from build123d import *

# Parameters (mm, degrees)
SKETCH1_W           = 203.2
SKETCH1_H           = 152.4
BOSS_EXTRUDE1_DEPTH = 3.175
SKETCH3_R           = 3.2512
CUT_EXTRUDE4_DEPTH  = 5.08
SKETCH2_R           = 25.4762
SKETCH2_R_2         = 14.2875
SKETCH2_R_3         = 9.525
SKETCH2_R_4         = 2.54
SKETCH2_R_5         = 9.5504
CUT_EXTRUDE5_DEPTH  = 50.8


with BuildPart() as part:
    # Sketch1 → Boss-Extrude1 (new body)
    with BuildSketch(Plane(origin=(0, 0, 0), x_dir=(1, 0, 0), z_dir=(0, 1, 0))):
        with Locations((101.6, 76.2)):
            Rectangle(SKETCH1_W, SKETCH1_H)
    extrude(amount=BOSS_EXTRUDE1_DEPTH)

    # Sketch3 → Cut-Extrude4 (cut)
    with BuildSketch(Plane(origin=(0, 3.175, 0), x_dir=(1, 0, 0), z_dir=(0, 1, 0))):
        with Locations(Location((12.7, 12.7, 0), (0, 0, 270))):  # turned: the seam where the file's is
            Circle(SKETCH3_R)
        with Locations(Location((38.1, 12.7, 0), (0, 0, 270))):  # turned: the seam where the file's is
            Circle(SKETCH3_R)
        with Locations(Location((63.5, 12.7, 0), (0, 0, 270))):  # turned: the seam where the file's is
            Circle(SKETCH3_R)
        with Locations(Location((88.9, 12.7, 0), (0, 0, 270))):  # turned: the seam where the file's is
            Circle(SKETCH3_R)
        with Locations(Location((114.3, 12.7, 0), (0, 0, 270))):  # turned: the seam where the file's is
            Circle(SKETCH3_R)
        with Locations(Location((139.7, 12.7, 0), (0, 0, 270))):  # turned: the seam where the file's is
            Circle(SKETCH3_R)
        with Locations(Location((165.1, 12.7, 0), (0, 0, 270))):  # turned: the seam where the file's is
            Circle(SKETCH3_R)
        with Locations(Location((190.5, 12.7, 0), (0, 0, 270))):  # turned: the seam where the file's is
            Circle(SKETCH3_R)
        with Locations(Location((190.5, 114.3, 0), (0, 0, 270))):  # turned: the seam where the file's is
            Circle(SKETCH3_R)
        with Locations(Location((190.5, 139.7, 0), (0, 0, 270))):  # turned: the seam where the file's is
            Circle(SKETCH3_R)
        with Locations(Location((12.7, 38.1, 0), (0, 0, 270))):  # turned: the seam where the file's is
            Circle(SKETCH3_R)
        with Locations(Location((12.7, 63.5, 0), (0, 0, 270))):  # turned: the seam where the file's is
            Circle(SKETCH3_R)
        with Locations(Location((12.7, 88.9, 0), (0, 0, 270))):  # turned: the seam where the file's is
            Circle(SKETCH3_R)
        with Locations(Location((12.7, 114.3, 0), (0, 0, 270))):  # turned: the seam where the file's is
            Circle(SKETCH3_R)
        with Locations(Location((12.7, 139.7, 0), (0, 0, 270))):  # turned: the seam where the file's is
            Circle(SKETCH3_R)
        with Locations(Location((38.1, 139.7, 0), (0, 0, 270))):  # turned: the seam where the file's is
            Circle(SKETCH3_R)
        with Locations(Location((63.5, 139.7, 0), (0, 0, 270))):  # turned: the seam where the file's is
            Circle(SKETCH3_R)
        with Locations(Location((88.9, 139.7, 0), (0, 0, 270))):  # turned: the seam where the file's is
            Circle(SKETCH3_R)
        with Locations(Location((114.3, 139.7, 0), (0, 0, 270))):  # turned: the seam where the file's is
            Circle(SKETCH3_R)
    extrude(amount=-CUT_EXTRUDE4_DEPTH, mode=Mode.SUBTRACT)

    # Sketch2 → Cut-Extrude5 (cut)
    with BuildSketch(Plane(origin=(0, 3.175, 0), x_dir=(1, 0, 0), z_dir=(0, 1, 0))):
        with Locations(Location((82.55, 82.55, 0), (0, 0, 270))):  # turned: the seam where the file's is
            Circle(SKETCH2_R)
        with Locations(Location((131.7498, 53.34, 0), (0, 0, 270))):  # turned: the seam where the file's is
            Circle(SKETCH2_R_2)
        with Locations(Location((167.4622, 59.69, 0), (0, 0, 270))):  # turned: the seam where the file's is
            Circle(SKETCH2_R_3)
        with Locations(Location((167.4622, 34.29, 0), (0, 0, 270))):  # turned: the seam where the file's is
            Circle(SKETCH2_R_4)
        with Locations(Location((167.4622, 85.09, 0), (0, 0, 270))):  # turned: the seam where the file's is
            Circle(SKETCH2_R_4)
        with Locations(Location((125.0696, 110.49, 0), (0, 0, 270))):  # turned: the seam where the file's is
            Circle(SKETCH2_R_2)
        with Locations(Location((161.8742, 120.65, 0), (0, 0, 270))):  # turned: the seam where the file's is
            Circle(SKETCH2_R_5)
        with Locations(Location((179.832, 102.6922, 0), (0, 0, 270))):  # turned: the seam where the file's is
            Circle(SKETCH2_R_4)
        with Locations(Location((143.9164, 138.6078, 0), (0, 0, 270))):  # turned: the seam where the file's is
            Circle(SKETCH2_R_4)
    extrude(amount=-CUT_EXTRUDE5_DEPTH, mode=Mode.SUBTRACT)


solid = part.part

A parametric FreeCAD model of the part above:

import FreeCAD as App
import Part
import Sketcher

V = App.Vector
Q = App.Units.Quantity


def add_polygon(sketch, points):
    """Adds a closed chain of lines whose ends are joined by coincident constraints."""
    first, n = sketch.GeometryCount, len(points)
    for a, b in zip(points, points[1:] + points[:1]):
        sketch.addGeometry(Part.LineSegment(App.Vector(*a, 0), App.Vector(*b, 0)), False)
    for i in range(n):
        sketch.addConstraint(Sketcher.Constraint("Coincident", first + i, 2, first + (i + 1) % n, 1))

doc = App.newDocument("Part")
body = doc.addObject("PartDesign::Body", "Body")

sketch1 = body.newObject("Sketcher::SketchObject", "Sketch")
sketch1.AttachmentSupport = (doc.getObject("XZ_Plane"), [""])
sketch1.MapMode = "FlatFace"
add_polygon(sketch1, [(0, -152.4), (0, 0), (203.2, 0), (203.2, -152.4)])
sketch1.addConstraint(Sketcher.Constraint("Vertical", 0))
sketch1.addConstraint(Sketcher.Constraint("Horizontal", 1))
sketch1.addConstraint(Sketcher.Constraint("Vertical", 2))
sketch1.addConstraint(Sketcher.Constraint("Horizontal", 3))
sketch1.addConstraint(Sketcher.Constraint("Coincident", 0, 2, -1, 1))
sketch1.addConstraint(Sketcher.Constraint("DistanceX", 1, 1, 1, 2, Q("8 in")))
sketch1.addConstraint(Sketcher.Constraint("DistanceY", 0, 1, 0, 2, Q("6 in")))
pad1 = body.newObject("PartDesign::Pad", "Pad")
pad1.Profile = sketch1
pad1.Length = Q("0.125 in")
pad1.Reversed = True

sketch2 = body.newObject("Sketcher::SketchObject", "Sketch001")
sketch2.AttachmentSupport = (doc.getObject("XZ_Plane"), [""])
sketch2.MapMode = "FlatFace"
sketch2.AttachmentOffset = App.Placement(V(0, 0, -0.125 * 25.4), App.Rotation())
sketch2.addGeometry(Part.Circle(V(12.7, -12.7, 0), V(0, 0, 1), 3.2512), False)
sketch2.addGeometry(Part.Circle(V(38.1, -12.7, 0), V(0, 0, 1), 3.2512), False)
sketch2.addGeometry(Part.Circle(V(63.5, -12.7, 0), V(0, 0, 1), 3.2512), False)
sketch2.addGeometry(Part.Circle(V(88.9, -12.7, 0), V(0, 0, 1), 3.2512), False)
sketch2.addGeometry(Part.Circle(V(114.3, -12.7, 0), V(0, 0, 1), 3.2512), False)
sketch2.addGeometry(Part.Circle(V(139.7, -12.7, 0), V(0, 0, 1), 3.2512), False)
sketch2.addGeometry(Part.Circle(V(165.1, -12.7, 0), V(0, 0, 1), 3.2512), False)
sketch2.addGeometry(Part.Circle(V(190.5, -12.7, 0), V(0, 0, 1), 3.2512), False)
sketch2.addGeometry(Part.Circle(V(190.5, -114.3, 0), V(0, 0, 1), 3.2512), False)
sketch2.addGeometry(Part.Circle(V(190.5, -139.7, 0), V(0, 0, 1), 3.2512), False)
sketch2.addGeometry(Part.Circle(V(12.7, -38.1, 0), V(0, 0, 1), 3.2512), False)
sketch2.addGeometry(Part.Circle(V(12.7, -63.5, 0), V(0, 0, 1), 3.2512), False)
sketch2.addGeometry(Part.Circle(V(12.7, -88.9, 0), V(0, 0, 1), 3.2512), False)
sketch2.addGeometry(Part.Circle(V(12.7, -114.3, 0), V(0, 0, 1), 3.2512), False)
sketch2.addGeometry(Part.Circle(V(12.7, -139.7, 0), V(0, 0, 1), 3.2512), False)
sketch2.addGeometry(Part.Circle(V(38.1, -139.7, 0), V(0, 0, 1), 3.2512), False)
sketch2.addGeometry(Part.Circle(V(63.5, -139.7, 0), V(0, 0, 1), 3.2512), False)
sketch2.addGeometry(Part.Circle(V(88.9, -139.7, 0), V(0, 0, 1), 3.2512), False)
sketch2.addGeometry(Part.Circle(V(114.3, -139.7, 0), V(0, 0, 1), 3.2512), False)
sketch2.addConstraint(Sketcher.Constraint("Equal", 0, 1))
sketch2.addConstraint(Sketcher.Constraint("Equal", 1, 2))
sketch2.addConstraint(Sketcher.Constraint("Equal", 2, 3))
sketch2.addConstraint(Sketcher.Constraint("Equal", 3, 4))
sketch2.addConstraint(Sketcher.Constraint("Equal", 4, 5))
sketch2.addConstraint(Sketcher.Constraint("Equal", 5, 6))
sketch2.addConstraint(Sketcher.Constraint("Equal", 6, 7))
sketch2.addConstraint(Sketcher.Constraint("Equal", 7, 8))
sketch2.addConstraint(Sketcher.Constraint("Equal", 8, 9))
sketch2.addConstraint(Sketcher.Constraint("Equal", 9, 10))
sketch2.addConstraint(Sketcher.Constraint("Equal", 10, 11))
sketch2.addConstraint(Sketcher.Constraint("Equal", 11, 12))
sketch2.addConstraint(Sketcher.Constraint("Equal", 12, 13))
sketch2.addConstraint(Sketcher.Constraint("Equal", 13, 14))
sketch2.addConstraint(Sketcher.Constraint("Equal", 14, 15))
sketch2.addConstraint(Sketcher.Constraint("Equal", 15, 16))
sketch2.addConstraint(Sketcher.Constraint("Equal", 16, 17))
sketch2.addConstraint(Sketcher.Constraint("Equal", 17, 18))
sketch2.addConstraint(Sketcher.Constraint("Horizontal", 0, 3, 1, 3))
sketch2.addConstraint(Sketcher.Constraint("Horizontal", 1, 3, 2, 3))
sketch2.addConstraint(Sketcher.Constraint("Horizontal", 2, 3, 3, 3))
sketch2.addConstraint(Sketcher.Constraint("Horizontal", 3, 3, 4, 3))
sketch2.addConstraint(Sketcher.Constraint("Horizontal", 4, 3, 5, 3))
sketch2.addConstraint(Sketcher.Constraint("Horizontal", 5, 3, 6, 3))
sketch2.addConstraint(Sketcher.Constraint("Horizontal", 6, 3, 7, 3))
sketch2.addConstraint(Sketcher.Constraint("Horizontal", 8, 3, 13, 3))
sketch2.addConstraint(Sketcher.Constraint("Horizontal", 9, 3, 14, 3))
sketch2.addConstraint(Sketcher.Constraint("Horizontal", 14, 3, 15, 3))
sketch2.addConstraint(Sketcher.Constraint("Horizontal", 15, 3, 16, 3))
sketch2.addConstraint(Sketcher.Constraint("Horizontal", 16, 3, 17, 3))
sketch2.addConstraint(Sketcher.Constraint("Horizontal", 17, 3, 18, 3))
sketch2.addConstraint(Sketcher.Constraint("Vertical", 7, 3, 8, 3))
sketch2.addConstraint(Sketcher.Constraint("Vertical", 8, 3, 9, 3))
sketch2.addConstraint(Sketcher.Constraint("Vertical", 0, 3, 10, 3))
sketch2.addConstraint(Sketcher.Constraint("Vertical", 10, 3, 11, 3))
sketch2.addConstraint(Sketcher.Constraint("Vertical", 11, 3, 12, 3))
sketch2.addConstraint(Sketcher.Constraint("Vertical", 12, 3, 13, 3))
sketch2.addConstraint(Sketcher.Constraint("Vertical", 13, 3, 14, 3))
sketch2.addConstraint(Sketcher.Constraint("Vertical", 1, 3, 15, 3))
sketch2.addConstraint(Sketcher.Constraint("Vertical", 2, 3, 16, 3))
sketch2.addConstraint(Sketcher.Constraint("Vertical", 3, 3, 17, 3))
sketch2.addConstraint(Sketcher.Constraint("Vertical", 4, 3, 18, 3))
sketch2.addConstraint(Sketcher.Constraint("Diameter", 0, Q("0.256 in")))
sketch2.addConstraint(Sketcher.Constraint("DistanceX", 0, 3, 1, 3, Q("1 in")))
sketch2.addConstraint(Sketcher.Constraint("DistanceX", 1, 3, 2, 3, Q("1 in")))
sketch2.addConstraint(Sketcher.Constraint("DistanceX", 2, 3, 3, 3, Q("1 in")))
sketch2.addConstraint(Sketcher.Constraint("DistanceX", 3, 3, 4, 3, Q("1 in")))
sketch2.addConstraint(Sketcher.Constraint("DistanceX", 4, 3, 5, 3, Q("1 in")))
sketch2.addConstraint(Sketcher.Constraint("DistanceX", 5, 3, 6, 3, Q("1 in")))
sketch2.addConstraint(Sketcher.Constraint("DistanceX", 6, 3, 7, 3, Q("1 in")))
sketch2.addConstraint(Sketcher.Constraint("DistanceY", 8, 3, 7, 3, Q("4 in")))
sketch2.addConstraint(Sketcher.Constraint("DistanceY", 9, 3, 8, 3, Q("1 in")))
sketch2.addConstraint(Sketcher.Constraint("DistanceY", 10, 3, 0, 3, Q("1 in")))
sketch2.addConstraint(Sketcher.Constraint("DistanceY", 11, 3, 10, 3, Q("1 in")))
sketch2.addConstraint(Sketcher.Constraint("DistanceY", 12, 3, 11, 3, Q("1 in")))
sketch2.addConstraint(Sketcher.Constraint("DistanceX", -1, 1, 0, 3, Q("0.5 in")))
sketch2.addConstraint(Sketcher.Constraint("DistanceY", 0, 3, -1, 1, Q("0.5 in")))
pocket1 = body.newObject("PartDesign::Pocket", "Pocket")
pocket1.Profile = sketch2
pocket1.Length = Q("0.2 in")
pocket1.Reversed = True

sketch3 = body.newObject("Sketcher::SketchObject", "Sketch002")
sketch3.AttachmentSupport = (doc.getObject("XZ_Plane"), [""])
sketch3.MapMode = "FlatFace"
sketch3.AttachmentOffset = App.Placement(V(0, 0, -0.125 * 25.4), App.Rotation())
sketch3.addGeometry(Part.Circle(V(82.55, -82.55, 0), V(0, 0, 1), 25.4762), False)
sketch3.addGeometry(Part.Circle(V(131.7498, -53.34, 0), V(0, 0, 1), 14.2875), False)
sketch3.addGeometry(Part.Circle(V(167.4622, -59.69, 0), V(0, 0, 1), 9.525), False)
sketch3.addGeometry(Part.Circle(V(167.4622, -34.29, 0), V(0, 0, 1), 2.54), False)
sketch3.addGeometry(Part.Circle(V(167.4622, -85.09, 0), V(0, 0, 1), 2.54), False)
sketch3.addGeometry(Part.Circle(V(125.0696, -110.49, 0), V(0, 0, 1), 14.2875), False)
sketch3.addGeometry(Part.Circle(V(161.8742, -120.65, 0), V(0, 0, 1), 9.5504), False)
sketch3.addGeometry(Part.Circle(V(179.832, -102.6922, 0), V(0, 0, 1), 2.54), False)
sketch3.addGeometry(Part.Circle(V(143.9164, -138.6078, 0), V(0, 0, 1), 2.54), False)
sketch3.addConstraint(Sketcher.Constraint("Equal", 3, 4))
sketch3.addConstraint(Sketcher.Constraint("Equal", 1, 5))
sketch3.addConstraint(Sketcher.Constraint("Equal", 4, 7))
sketch3.addConstraint(Sketcher.Constraint("Equal", 7, 8))
sketch3.addConstraint(Sketcher.Constraint("Vertical", 2, 3, 3, 3))
sketch3.addConstraint(Sketcher.Constraint("Vertical", 3, 3, 4, 3))
sketch3.addConstraint(Sketcher.Constraint("Diameter", 3, Q("0.2 in")))
sketch3.addConstraint(Sketcher.Constraint("Diameter", 2, Q("0.75 in")))
sketch3.addConstraint(Sketcher.Constraint("Diameter", 0, Q("2.006 in")))
sketch3.addConstraint(Sketcher.Constraint("Diameter", 1, Q("1.125 in")))
sketch3.addConstraint(Sketcher.Constraint("Diameter", 6, Q("0.752 in")))
sketch3.addConstraint(Sketcher.Constraint("DistanceY", 2, 3, 3, 3, Q("1 in")))
sketch3.addConstraint(Sketcher.Constraint("DistanceY", 4, 3, 2, 3, Q("1 in")))
sketch3.addConstraint(Sketcher.Constraint("DistanceY", 5, 3, 4, 3, Q("1 in")))
sketch3.addConstraint(Sketcher.Constraint("DistanceY", 1, 3, -1, 1, Q("2.1 in")))
sketch3.addConstraint(Sketcher.Constraint("DistanceY", 0, 3, 2, 3, Q("0.9 in")))
sketch3.addConstraint(Sketcher.Constraint("DistanceY", 6, 3, 4, 3, Q("1.4 in")))
sketch3.addConstraint(Sketcher.Constraint("DistanceX", -1, 1, 0, 3, Q("3.25 in")))
sketch3.addConstraint(Sketcher.Constraint("DistanceY", 0, 3, -1, 1, Q("3.25 in")))
sketch3.addConstraint(Sketcher.Constraint("DistanceX", -1, 1, 7, 3, Q("7.08 in")))
sketch3.addConstraint(Sketcher.Constraint("DistanceX", 6, 3, 4, 3, Q("0.22 in")))
sketch3.addConstraint(Sketcher.Constraint("DistanceX", -1, 1, 1, 3, Q("5.187 in")))
sketch3.addConstraint(Sketcher.Constraint("DistanceX", -1, 1, 2, 3, Q("6.593 in")))
sketch3.addConstraint(Sketcher.Constraint("DistanceX", -1, 1, 5, 3, Q("4.924 in")))
sketch3.addConstraint(Sketcher.Constraint("DistanceY", 7, 3, -1, 1, Q("4.043 in")))
sketch3.addConstraint(Sketcher.Constraint("DistanceX", -1, 1, 8, 3, Q("5.666 in")))
sketch3.addConstraint(Sketcher.Constraint("DistanceY", 8, 3, -1, 1, Q("5.457 in")))
pocket2 = body.newObject("PartDesign::Pocket", "Pocket001")
pocket2.Profile = sketch3
pocket2.Length = Q("2 in")
pocket2.Reversed = True

doc.recompute()
